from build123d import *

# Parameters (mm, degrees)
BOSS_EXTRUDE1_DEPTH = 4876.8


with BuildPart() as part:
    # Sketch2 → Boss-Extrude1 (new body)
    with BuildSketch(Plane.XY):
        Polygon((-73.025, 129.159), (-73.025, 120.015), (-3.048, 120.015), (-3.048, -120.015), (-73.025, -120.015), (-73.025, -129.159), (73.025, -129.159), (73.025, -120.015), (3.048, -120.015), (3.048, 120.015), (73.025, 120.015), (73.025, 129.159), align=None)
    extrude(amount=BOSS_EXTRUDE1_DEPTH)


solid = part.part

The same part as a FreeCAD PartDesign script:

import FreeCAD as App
import Part
import Sketcher
Q = App.Units.Quantity


def add_polygon(sketch, points):
    """Adds a closed chain of lines whose ends are joined by coincident constraints."""
    first, n = sketch.GeometryCount, len(points)
    for a, b in zip(points, points[1:] + points[:1]):
        sketch.addGeometry(Part.LineSegment(App.Vector(*a, 0), App.Vector(*b, 0)), False)
    for i in range(n):
        sketch.addConstraint(Sketcher.Constraint("Coincident", first + i, 2, first + (i + 1) % n, 1))

doc = App.newDocument("Part")
body = doc.addObject("PartDesign::Body", "Body")

# Sketch on XY plane
sketch1 = doc.addObject("Sketcher::SketchObject", "Sketch")
body.addObject(sketch1)
sketch1.AttachmentSupport = (doc.XY_Plane, [""])
sketch1.MapMode = "FlatFace"
add_polygon(sketch1, [(-73, 129), (-73, 120), (-3, 120), (-3, -120), (-73, -120), (-73, -129), (73, -129), (73, -120), (3, -120), (3, 120), (73, 120), (73, 129)])  # lines 0-11
sketch1.addConstraint([
    Sketcher.Constraint("Vertical", 0),
    Sketcher.Constraint("Horizontal", 1),
    Sketcher.Constraint("Vertical", 2),
    Sketcher.Constraint("Horizontal", 3),
    Sketcher.Constraint("Vertical", 4),
    Sketcher.Constraint("Horizontal", 5),
    Sketcher.Constraint("Vertical", 6),
    Sketcher.Constraint("Horizontal", 7),
    Sketcher.Constraint("Vertical", 8),
    Sketcher.Constraint("Horizontal", 9),
    Sketcher.Constraint("Vertical", 10),
    Sketcher.Constraint("Horizontal", 11),
    Sketcher.Constraint("Symmetric", 0, 2, 6, 2, -1, 1),
    Sketcher.Constraint("Symmetric", 2, 2, 8, 2, -1, 1),
    Sketcher.Constraint("Symmetric", 4, 2, 10, 2, -1, 1),
    Sketcher.Constraint("Symmetric", 3, 2, 6, 2, -2),
    Sketcher.Constraint("DistanceX", 5, 1, 5, 2, Q("5.75 in")),
    Sketcher.Constraint("DistanceY", 0, 2, 0, 1, Q("0.36 in")),
    Sketcher.Constraint("DistanceY", 2, 2, 2, 1, Q("9.45 in")),
    Sketcher.Constraint("DistanceX", 1, 1, 1, 2, Q("2.755 in")),
])
pad1 = doc.addObject("PartDesign::Pad", "Pad")
body.addObject(pad1)
pad1.Profile = sketch1
pad1.Length = Q("192 in")

doc.recompute()
